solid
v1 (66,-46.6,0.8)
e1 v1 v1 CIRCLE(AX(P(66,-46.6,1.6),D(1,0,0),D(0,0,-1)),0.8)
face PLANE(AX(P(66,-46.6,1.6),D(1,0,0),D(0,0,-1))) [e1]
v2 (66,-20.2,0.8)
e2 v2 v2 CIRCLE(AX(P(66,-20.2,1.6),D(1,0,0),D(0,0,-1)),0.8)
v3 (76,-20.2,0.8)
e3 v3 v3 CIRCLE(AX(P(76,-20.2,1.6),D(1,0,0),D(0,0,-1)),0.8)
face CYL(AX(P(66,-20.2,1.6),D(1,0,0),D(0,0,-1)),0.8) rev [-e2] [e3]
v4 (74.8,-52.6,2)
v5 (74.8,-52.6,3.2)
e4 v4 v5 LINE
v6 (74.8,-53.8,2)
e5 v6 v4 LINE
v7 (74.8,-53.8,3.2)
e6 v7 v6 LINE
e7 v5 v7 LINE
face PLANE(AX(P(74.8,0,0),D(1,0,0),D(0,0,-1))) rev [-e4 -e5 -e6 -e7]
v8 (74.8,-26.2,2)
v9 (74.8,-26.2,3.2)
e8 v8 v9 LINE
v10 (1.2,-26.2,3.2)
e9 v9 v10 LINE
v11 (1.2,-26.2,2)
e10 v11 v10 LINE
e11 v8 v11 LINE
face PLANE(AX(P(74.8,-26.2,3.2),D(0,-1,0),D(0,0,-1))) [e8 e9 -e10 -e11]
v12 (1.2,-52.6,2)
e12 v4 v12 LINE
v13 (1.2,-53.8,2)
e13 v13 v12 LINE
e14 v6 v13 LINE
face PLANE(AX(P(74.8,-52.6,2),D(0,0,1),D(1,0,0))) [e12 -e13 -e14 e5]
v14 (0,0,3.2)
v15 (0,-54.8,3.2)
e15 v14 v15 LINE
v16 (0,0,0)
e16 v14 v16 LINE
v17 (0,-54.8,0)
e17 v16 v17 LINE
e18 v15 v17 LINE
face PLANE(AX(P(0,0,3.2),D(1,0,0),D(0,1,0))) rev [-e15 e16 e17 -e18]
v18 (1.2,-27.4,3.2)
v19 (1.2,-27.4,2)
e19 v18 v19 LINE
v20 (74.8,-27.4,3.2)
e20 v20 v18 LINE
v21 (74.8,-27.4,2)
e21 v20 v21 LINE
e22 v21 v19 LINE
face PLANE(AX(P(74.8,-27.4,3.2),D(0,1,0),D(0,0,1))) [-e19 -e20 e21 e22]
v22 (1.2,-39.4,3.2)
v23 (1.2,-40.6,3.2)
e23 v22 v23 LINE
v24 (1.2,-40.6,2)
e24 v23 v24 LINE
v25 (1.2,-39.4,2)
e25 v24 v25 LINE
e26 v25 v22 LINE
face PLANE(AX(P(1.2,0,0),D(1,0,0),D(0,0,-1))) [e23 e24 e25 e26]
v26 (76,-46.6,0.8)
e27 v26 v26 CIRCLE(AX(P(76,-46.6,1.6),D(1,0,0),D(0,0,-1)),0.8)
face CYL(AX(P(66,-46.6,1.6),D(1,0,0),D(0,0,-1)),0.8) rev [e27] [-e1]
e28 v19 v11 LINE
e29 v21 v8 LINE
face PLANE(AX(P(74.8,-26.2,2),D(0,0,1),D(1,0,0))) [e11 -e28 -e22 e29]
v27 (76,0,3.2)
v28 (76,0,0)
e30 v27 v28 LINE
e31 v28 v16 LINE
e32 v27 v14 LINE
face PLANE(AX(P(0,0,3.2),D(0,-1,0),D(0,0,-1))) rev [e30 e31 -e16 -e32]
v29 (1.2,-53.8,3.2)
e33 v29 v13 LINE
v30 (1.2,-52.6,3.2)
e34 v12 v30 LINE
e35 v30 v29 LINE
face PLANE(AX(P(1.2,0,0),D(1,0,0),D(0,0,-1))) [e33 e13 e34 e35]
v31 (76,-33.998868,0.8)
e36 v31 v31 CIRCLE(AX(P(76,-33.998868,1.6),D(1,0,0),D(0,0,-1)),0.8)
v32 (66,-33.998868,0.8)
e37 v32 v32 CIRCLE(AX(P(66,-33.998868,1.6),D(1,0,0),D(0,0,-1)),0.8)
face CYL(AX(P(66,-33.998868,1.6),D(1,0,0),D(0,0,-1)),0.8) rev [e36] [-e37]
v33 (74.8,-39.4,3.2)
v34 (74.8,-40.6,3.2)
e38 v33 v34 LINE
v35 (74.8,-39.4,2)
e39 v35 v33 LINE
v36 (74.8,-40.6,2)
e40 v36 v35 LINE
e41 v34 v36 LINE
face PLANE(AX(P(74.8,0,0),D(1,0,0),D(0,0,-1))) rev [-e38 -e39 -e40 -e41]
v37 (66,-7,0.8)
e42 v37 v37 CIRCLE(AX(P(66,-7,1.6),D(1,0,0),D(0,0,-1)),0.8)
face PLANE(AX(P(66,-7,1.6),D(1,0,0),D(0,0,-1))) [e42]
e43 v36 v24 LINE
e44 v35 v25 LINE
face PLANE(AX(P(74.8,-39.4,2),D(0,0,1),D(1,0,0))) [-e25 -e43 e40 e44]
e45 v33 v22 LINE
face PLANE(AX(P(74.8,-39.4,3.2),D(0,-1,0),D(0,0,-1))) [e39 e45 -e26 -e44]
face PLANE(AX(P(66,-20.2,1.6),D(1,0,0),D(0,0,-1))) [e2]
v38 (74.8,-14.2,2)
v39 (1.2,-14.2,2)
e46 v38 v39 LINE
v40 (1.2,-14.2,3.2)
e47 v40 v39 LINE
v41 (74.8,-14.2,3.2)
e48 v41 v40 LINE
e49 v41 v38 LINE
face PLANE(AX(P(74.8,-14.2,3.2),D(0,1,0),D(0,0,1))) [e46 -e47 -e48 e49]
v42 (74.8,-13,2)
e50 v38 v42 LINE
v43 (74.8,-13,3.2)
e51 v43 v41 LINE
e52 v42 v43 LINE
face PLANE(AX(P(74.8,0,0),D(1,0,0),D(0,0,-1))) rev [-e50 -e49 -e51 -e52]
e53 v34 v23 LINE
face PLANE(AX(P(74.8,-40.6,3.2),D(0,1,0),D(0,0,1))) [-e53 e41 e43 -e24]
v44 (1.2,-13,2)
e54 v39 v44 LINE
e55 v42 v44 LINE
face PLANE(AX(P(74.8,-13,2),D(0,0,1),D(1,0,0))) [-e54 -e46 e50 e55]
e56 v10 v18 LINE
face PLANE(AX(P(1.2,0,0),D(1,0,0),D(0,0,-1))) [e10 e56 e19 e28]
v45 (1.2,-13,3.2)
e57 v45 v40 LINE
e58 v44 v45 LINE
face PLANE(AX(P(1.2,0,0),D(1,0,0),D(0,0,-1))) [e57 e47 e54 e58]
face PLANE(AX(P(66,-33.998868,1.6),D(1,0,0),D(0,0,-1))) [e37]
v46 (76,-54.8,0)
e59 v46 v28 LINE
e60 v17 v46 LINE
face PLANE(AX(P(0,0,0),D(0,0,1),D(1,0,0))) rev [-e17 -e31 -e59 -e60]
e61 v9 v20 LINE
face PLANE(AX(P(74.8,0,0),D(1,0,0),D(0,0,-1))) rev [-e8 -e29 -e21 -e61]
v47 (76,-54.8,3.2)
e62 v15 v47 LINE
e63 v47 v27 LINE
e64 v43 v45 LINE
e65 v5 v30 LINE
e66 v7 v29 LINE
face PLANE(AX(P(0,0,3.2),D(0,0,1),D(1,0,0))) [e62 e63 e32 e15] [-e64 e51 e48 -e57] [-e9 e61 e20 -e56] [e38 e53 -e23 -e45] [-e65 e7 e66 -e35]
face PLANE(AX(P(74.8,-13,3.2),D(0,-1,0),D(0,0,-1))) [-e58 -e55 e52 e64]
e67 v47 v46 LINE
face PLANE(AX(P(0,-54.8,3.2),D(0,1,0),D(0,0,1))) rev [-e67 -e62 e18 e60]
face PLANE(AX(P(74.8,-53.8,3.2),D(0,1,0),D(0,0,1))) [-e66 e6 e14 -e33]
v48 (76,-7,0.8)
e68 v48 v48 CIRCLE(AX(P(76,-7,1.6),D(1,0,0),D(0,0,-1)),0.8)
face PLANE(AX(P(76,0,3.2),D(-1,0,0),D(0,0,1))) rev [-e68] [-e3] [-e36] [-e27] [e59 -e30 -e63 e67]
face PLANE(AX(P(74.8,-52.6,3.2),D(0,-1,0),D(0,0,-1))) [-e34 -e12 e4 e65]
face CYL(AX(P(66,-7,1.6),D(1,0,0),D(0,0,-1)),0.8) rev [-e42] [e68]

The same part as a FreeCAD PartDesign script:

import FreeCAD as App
import Part
import Sketcher
from FreeCAD import Vector
Q = App.Units.Quantity

doc = App.newDocument("Part")
params = doc.addObject("Spreadsheet::Sheet", "Params")
for row, (alias, value) in enumerate([
    ("sketch1_width", "76 mm"),
    ("sketch1_height", "54.8 mm"),
    ("pad1_length", "3.2 mm"),
    ("sketch2_width", "1.2 mm"),
    ("pocket1_length", "73.6 mm"),
    ("sketch3_diameter", "1.6 mm"),
    ("pocket2_length", "10 mm"),
], start=1):
    params.set(f"A{row}", alias)
    params.set(f"B{row}", "=" + value)
    params.setAlias(f"B{row}", alias)

body = doc.addObject("PartDesign::Body", "Body")

# Sketch on XY plane
sketch1 = doc.addObject("Sketcher::SketchObject", "Sketch")
body.addObject(sketch1)
sketch1.AttachmentSupport = (doc.XY_Plane, [""])
sketch1.MapMode = "FlatFace"
sketch1.addGeometry([
    Part.LineSegment(Vector(0, 0, 0), Vector(0, -55, 0)),
    Part.LineSegment(Vector(0, -55, 0), Vector(76, -55, 0)),
    Part.LineSegment(Vector(76, -55, 0), Vector(76, 0, 0)),
    Part.LineSegment(Vector(76, 0, 0), Vector(0, 0, 0)),
], False)
sketch1.addConstraint([
    Sketcher.Constraint("Coincident", 0, 2, 1, 1),
    Sketcher.Constraint("Coincident", 1, 2, 2, 1),
    Sketcher.Constraint("Coincident", 2, 2, 3, 1),
    Sketcher.Constraint("Coincident", 3, 2, 0, 1),
    Sketcher.Constraint("Vertical", 0),
    Sketcher.Constraint("Horizontal", 1),
    Sketcher.Constraint("Vertical", 2),
    Sketcher.Constraint("Horizontal", 3),
    Sketcher.Constraint("Coincident", 3, 2, -1, 1),
    Sketcher.Constraint("DistanceX", 1, 1, 1, 2, Q("76 mm")),
    Sketcher.Constraint("DistanceY", 0, 2, 0, 1, Q("54.8 mm")),
])
sketch1.setExpression("Constraints[9]", "Params.sketch1_width")
sketch1.setExpression("Constraints[10]", "Params.sketch1_height")
pad1 = doc.addObject("PartDesign::Pad", "Pad")
body.addObject(pad1)
pad1.Profile = sketch1
pad1.setExpression("Length", "Params.pad1_length")

# Sketch on YZ plane
sketch2 = doc.addObject("Sketcher::SketchObject", "Sketch001")
body.addObject(sketch2)
sketch2.AttachmentSupport = (doc.YZ_Plane, [""])
sketch2.MapMode = "FlatFace"
sketch2.AttachmentOffset = App.Placement(Vector(0, 0, 1.2), App.Rotation())
sketch2.addGeometry([
    Part.LineSegment(Vector(-13, 3.2, 0), Vector(-14.2, 3.2, 0)),  # 0
    Part.LineSegment(Vector(-14.2, 3.2, 0), Vector(-14.2, 2, 0)),  # 1
    Part.LineSegment(Vector(-14.2, 2, 0), Vector(-13, 2, 0)),  # 2
    Part.LineSegment(Vector(-13, 2, 0), Vector(-13, 3.2, 0)),  # 3
    Part.LineSegment(Vector(-26.2, 3.2, 0), Vector(-27.4, 3.2, 0)),  # 4
    Part.LineSegment(Vector(-27.4, 3.2, 0), Vector(-27.4, 2, 0)),  # 5
    Part.LineSegment(Vector(-27.4, 2, 0), Vector(-26.2, 2, 0)),  # 6
    Part.LineSegment(Vector(-26.2, 2, 0), Vector(-26.2, 3.2, 0)),  # 7
    Part.LineSegment(Vector(-39.4, 3.2, 0), Vector(-40.6, 3.2, 0)),  # 8
    Part.LineSegment(Vector(-40.6, 3.2, 0), Vector(-40.6, 2, 0)),  # 9
    Part.LineSegment(Vector(-40.6, 2, 0), Vector(-39.4, 2, 0)),  # 10
    Part.LineSegment(Vector(-39.4, 2, 0), Vector(-39.4, 3.2, 0)),  # 11
    Part.LineSegment(Vector(-52.6, 3.2, 0), Vector(-53.8, 3.2, 0)),  # 12
    Part.LineSegment(Vector(-53.8, 3.2, 0), Vector(-53.8, 2, 0)),  # 13
    Part.LineSegment(Vector(-53.8, 2, 0), Vector(-52.6, 2, 0)),  # 14
    Part.LineSegment(Vector(-52.6, 2, 0), Vector(-52.6, 3.2, 0)),  # 15
], False)
sketch2.addConstraint([
    Sketcher.Constraint("Coincident", 0, 2, 1, 1),
    Sketcher.Constraint("Coincident", 1, 2, 2, 1),
    Sketcher.Constraint("Coincident", 2, 2, 3, 1),
    Sketcher.Constraint("Coincident", 3, 2, 0, 1),
    Sketcher.Constraint("Coincident", 4, 2, 5, 1),
    Sketcher.Constraint("Coincident", 5, 2, 6, 1),
    Sketcher.Constraint("Coincident", 6, 2, 7, 1),
    Sketcher.Constraint("Coincident", 7, 2, 4, 1),
    Sketcher.Constraint("Coincident", 8, 2, 9, 1),
    Sketcher.Constraint("Coincident", 9, 2, 10, 1),
    Sketcher.Constraint("Coincident", 10, 2, 11, 1),
    Sketcher.Constraint("Coincident", 11, 2, 8, 1),
    Sketcher.Constraint("Coincident", 12, 2, 13, 1),
    Sketcher.Constraint("Coincident", 13, 2, 14, 1),
    Sketcher.Constraint("Coincident", 14, 2, 15, 1),
    Sketcher.Constraint("Coincident", 15, 2, 12, 1),
    Sketcher.Constraint("Horizontal", 0),
    Sketcher.Constraint("Vertical", 1),
    Sketcher.Constraint("Horizontal", 2),
    Sketcher.Constraint("Vertical", 3),
    Sketcher.Constraint("Horizontal", 4),
    Sketcher.Constraint("Vertical", 5),
    Sketcher.Constraint("Horizontal", 6),
    Sketcher.Constraint("Vertical", 7),
    Sketcher.Constraint("Horizontal", 8),
    Sketcher.Constraint("Vertical", 9),
    Sketcher.Constraint("Horizontal", 10),
    Sketcher.Constraint("Vertical", 11),
    Sketcher.Constraint("Horizontal", 12),
    Sketcher.Constraint("Vertical", 13),
    Sketcher.Constraint("Horizontal", 14),
    Sketcher.Constraint("Vertical", 15),
    Sketcher.Constraint("Horizontal", 3, 2, 4, 2),
    Sketcher.Constraint("Horizontal", 2, 2, 5, 2),
    Sketcher.Constraint("Horizontal", 7, 2, 8, 2),
    Sketcher.Constraint("Horizontal", 6, 2, 9, 2),
    Sketcher.Constraint("Horizontal", 11, 2, 12, 2),
    Sketcher.Constraint("Horizontal", 10, 2, 13, 2),
    Sketcher.Constraint("Equal", 2, 4),
    Sketcher.Constraint("Equal", 6, 8),
    Sketcher.Constraint("Equal", 10, 12),
    Sketcher.Constraint("Equal", 14, 1),
    Sketcher.Constraint("DistanceX", 0, 2, 0, 1, Q("1.2 mm")),
    Sketcher.Constraint("DistanceY", -1, 1, 1, 2, Q("2 mm")),
    Sketcher.Constraint("DistanceX", 2, 2, -1, 1, Q("13 mm")),
    Sketcher.Constraint("DistanceX", 6, 2, 1, 2, Q("12 mm")),
    Sketcher.Constraint("DistanceX", 10, 2, 5, 2, Q("12 mm")),
    Sketcher.Constraint("DistanceX", 14, 2, 9, 2, Q("12 mm")),
])
sketch2.setExpression("Constraints[42]", "Params.sketch2_width")
pocket1 = doc.addObject("PartDesign::Pocket", "Pocket")
body.addObject(pocket1)
pocket1.Profile = sketch2
pocket1.setExpression("Length", "Params.pocket1_length")
pocket1.Reversed = True

# Sketch on YZ plane
sketch3 = doc.addObject("Sketcher::SketchObject", "Sketch002")
body.addObject(sketch3)
sketch3.AttachmentSupport = (doc.YZ_Plane, [""])
sketch3.MapMode = "FlatFace"
sketch3.AttachmentOffset = App.Placement(Vector(0, 0, 76), App.Rotation())
sketch3.addGeometry([
    Part.Circle(Vector(-7, 1.6, 0), Vector(0, 0, 1), 0.8),
    Part.Circle(Vector(-20.2, 1.6, 0), Vector(0, 0, 1), 0.8),
    Part.Circle(Vector(-34, 1.6, 0), Vector(0, 0, 1), 0.8),
    Part.Circle(Vector(-46.6, 1.6, 0), Vector(0, 0, 1), 0.8),
], False)
sketch3.addConstraint([
    Sketcher.Constraint("Equal", 0, 1),
    Sketcher.Constraint("Equal", 1, 2),
    Sketcher.Constraint("Equal", 2, 3),
    Sketcher.Constraint("Horizontal", 0, 3, 1, 3),
    Sketcher.Constraint("Horizontal", 1, 3, 2, 3),
    Sketcher.Constraint("Horizontal", 2, 3, 3, 3),
    Sketcher.Constraint("Diameter", 0, Q("1.6 mm")),
    Sketcher.Constraint("DistanceX", 0, 3, -1, 1, Q("7 mm")),
    Sketcher.Constraint("DistanceY", -1, 1, 0, 3, Q("1.6 mm")),
    Sketcher.Constraint("DistanceX", 1, 3, -1, 1, Q("20.2 mm")),
    Sketcher.Constraint("DistanceX", 3, 3, -1, 1, Q("46.6 mm")),
    Sketcher.Constraint("DistanceX", 2, 3, -1, 1, Q("33.998868 mm")),
])
sketch3.setExpression("Constraints[6]", "Params.sketch3_diameter")
pocket2 = doc.addObject("PartDesign::Pocket", "Pocket001")
body.addObject(pocket2)
pocket2.Profile = sketch3
pocket2.setExpression("Length", "Params.pocket2_length")

doc.recompute()
